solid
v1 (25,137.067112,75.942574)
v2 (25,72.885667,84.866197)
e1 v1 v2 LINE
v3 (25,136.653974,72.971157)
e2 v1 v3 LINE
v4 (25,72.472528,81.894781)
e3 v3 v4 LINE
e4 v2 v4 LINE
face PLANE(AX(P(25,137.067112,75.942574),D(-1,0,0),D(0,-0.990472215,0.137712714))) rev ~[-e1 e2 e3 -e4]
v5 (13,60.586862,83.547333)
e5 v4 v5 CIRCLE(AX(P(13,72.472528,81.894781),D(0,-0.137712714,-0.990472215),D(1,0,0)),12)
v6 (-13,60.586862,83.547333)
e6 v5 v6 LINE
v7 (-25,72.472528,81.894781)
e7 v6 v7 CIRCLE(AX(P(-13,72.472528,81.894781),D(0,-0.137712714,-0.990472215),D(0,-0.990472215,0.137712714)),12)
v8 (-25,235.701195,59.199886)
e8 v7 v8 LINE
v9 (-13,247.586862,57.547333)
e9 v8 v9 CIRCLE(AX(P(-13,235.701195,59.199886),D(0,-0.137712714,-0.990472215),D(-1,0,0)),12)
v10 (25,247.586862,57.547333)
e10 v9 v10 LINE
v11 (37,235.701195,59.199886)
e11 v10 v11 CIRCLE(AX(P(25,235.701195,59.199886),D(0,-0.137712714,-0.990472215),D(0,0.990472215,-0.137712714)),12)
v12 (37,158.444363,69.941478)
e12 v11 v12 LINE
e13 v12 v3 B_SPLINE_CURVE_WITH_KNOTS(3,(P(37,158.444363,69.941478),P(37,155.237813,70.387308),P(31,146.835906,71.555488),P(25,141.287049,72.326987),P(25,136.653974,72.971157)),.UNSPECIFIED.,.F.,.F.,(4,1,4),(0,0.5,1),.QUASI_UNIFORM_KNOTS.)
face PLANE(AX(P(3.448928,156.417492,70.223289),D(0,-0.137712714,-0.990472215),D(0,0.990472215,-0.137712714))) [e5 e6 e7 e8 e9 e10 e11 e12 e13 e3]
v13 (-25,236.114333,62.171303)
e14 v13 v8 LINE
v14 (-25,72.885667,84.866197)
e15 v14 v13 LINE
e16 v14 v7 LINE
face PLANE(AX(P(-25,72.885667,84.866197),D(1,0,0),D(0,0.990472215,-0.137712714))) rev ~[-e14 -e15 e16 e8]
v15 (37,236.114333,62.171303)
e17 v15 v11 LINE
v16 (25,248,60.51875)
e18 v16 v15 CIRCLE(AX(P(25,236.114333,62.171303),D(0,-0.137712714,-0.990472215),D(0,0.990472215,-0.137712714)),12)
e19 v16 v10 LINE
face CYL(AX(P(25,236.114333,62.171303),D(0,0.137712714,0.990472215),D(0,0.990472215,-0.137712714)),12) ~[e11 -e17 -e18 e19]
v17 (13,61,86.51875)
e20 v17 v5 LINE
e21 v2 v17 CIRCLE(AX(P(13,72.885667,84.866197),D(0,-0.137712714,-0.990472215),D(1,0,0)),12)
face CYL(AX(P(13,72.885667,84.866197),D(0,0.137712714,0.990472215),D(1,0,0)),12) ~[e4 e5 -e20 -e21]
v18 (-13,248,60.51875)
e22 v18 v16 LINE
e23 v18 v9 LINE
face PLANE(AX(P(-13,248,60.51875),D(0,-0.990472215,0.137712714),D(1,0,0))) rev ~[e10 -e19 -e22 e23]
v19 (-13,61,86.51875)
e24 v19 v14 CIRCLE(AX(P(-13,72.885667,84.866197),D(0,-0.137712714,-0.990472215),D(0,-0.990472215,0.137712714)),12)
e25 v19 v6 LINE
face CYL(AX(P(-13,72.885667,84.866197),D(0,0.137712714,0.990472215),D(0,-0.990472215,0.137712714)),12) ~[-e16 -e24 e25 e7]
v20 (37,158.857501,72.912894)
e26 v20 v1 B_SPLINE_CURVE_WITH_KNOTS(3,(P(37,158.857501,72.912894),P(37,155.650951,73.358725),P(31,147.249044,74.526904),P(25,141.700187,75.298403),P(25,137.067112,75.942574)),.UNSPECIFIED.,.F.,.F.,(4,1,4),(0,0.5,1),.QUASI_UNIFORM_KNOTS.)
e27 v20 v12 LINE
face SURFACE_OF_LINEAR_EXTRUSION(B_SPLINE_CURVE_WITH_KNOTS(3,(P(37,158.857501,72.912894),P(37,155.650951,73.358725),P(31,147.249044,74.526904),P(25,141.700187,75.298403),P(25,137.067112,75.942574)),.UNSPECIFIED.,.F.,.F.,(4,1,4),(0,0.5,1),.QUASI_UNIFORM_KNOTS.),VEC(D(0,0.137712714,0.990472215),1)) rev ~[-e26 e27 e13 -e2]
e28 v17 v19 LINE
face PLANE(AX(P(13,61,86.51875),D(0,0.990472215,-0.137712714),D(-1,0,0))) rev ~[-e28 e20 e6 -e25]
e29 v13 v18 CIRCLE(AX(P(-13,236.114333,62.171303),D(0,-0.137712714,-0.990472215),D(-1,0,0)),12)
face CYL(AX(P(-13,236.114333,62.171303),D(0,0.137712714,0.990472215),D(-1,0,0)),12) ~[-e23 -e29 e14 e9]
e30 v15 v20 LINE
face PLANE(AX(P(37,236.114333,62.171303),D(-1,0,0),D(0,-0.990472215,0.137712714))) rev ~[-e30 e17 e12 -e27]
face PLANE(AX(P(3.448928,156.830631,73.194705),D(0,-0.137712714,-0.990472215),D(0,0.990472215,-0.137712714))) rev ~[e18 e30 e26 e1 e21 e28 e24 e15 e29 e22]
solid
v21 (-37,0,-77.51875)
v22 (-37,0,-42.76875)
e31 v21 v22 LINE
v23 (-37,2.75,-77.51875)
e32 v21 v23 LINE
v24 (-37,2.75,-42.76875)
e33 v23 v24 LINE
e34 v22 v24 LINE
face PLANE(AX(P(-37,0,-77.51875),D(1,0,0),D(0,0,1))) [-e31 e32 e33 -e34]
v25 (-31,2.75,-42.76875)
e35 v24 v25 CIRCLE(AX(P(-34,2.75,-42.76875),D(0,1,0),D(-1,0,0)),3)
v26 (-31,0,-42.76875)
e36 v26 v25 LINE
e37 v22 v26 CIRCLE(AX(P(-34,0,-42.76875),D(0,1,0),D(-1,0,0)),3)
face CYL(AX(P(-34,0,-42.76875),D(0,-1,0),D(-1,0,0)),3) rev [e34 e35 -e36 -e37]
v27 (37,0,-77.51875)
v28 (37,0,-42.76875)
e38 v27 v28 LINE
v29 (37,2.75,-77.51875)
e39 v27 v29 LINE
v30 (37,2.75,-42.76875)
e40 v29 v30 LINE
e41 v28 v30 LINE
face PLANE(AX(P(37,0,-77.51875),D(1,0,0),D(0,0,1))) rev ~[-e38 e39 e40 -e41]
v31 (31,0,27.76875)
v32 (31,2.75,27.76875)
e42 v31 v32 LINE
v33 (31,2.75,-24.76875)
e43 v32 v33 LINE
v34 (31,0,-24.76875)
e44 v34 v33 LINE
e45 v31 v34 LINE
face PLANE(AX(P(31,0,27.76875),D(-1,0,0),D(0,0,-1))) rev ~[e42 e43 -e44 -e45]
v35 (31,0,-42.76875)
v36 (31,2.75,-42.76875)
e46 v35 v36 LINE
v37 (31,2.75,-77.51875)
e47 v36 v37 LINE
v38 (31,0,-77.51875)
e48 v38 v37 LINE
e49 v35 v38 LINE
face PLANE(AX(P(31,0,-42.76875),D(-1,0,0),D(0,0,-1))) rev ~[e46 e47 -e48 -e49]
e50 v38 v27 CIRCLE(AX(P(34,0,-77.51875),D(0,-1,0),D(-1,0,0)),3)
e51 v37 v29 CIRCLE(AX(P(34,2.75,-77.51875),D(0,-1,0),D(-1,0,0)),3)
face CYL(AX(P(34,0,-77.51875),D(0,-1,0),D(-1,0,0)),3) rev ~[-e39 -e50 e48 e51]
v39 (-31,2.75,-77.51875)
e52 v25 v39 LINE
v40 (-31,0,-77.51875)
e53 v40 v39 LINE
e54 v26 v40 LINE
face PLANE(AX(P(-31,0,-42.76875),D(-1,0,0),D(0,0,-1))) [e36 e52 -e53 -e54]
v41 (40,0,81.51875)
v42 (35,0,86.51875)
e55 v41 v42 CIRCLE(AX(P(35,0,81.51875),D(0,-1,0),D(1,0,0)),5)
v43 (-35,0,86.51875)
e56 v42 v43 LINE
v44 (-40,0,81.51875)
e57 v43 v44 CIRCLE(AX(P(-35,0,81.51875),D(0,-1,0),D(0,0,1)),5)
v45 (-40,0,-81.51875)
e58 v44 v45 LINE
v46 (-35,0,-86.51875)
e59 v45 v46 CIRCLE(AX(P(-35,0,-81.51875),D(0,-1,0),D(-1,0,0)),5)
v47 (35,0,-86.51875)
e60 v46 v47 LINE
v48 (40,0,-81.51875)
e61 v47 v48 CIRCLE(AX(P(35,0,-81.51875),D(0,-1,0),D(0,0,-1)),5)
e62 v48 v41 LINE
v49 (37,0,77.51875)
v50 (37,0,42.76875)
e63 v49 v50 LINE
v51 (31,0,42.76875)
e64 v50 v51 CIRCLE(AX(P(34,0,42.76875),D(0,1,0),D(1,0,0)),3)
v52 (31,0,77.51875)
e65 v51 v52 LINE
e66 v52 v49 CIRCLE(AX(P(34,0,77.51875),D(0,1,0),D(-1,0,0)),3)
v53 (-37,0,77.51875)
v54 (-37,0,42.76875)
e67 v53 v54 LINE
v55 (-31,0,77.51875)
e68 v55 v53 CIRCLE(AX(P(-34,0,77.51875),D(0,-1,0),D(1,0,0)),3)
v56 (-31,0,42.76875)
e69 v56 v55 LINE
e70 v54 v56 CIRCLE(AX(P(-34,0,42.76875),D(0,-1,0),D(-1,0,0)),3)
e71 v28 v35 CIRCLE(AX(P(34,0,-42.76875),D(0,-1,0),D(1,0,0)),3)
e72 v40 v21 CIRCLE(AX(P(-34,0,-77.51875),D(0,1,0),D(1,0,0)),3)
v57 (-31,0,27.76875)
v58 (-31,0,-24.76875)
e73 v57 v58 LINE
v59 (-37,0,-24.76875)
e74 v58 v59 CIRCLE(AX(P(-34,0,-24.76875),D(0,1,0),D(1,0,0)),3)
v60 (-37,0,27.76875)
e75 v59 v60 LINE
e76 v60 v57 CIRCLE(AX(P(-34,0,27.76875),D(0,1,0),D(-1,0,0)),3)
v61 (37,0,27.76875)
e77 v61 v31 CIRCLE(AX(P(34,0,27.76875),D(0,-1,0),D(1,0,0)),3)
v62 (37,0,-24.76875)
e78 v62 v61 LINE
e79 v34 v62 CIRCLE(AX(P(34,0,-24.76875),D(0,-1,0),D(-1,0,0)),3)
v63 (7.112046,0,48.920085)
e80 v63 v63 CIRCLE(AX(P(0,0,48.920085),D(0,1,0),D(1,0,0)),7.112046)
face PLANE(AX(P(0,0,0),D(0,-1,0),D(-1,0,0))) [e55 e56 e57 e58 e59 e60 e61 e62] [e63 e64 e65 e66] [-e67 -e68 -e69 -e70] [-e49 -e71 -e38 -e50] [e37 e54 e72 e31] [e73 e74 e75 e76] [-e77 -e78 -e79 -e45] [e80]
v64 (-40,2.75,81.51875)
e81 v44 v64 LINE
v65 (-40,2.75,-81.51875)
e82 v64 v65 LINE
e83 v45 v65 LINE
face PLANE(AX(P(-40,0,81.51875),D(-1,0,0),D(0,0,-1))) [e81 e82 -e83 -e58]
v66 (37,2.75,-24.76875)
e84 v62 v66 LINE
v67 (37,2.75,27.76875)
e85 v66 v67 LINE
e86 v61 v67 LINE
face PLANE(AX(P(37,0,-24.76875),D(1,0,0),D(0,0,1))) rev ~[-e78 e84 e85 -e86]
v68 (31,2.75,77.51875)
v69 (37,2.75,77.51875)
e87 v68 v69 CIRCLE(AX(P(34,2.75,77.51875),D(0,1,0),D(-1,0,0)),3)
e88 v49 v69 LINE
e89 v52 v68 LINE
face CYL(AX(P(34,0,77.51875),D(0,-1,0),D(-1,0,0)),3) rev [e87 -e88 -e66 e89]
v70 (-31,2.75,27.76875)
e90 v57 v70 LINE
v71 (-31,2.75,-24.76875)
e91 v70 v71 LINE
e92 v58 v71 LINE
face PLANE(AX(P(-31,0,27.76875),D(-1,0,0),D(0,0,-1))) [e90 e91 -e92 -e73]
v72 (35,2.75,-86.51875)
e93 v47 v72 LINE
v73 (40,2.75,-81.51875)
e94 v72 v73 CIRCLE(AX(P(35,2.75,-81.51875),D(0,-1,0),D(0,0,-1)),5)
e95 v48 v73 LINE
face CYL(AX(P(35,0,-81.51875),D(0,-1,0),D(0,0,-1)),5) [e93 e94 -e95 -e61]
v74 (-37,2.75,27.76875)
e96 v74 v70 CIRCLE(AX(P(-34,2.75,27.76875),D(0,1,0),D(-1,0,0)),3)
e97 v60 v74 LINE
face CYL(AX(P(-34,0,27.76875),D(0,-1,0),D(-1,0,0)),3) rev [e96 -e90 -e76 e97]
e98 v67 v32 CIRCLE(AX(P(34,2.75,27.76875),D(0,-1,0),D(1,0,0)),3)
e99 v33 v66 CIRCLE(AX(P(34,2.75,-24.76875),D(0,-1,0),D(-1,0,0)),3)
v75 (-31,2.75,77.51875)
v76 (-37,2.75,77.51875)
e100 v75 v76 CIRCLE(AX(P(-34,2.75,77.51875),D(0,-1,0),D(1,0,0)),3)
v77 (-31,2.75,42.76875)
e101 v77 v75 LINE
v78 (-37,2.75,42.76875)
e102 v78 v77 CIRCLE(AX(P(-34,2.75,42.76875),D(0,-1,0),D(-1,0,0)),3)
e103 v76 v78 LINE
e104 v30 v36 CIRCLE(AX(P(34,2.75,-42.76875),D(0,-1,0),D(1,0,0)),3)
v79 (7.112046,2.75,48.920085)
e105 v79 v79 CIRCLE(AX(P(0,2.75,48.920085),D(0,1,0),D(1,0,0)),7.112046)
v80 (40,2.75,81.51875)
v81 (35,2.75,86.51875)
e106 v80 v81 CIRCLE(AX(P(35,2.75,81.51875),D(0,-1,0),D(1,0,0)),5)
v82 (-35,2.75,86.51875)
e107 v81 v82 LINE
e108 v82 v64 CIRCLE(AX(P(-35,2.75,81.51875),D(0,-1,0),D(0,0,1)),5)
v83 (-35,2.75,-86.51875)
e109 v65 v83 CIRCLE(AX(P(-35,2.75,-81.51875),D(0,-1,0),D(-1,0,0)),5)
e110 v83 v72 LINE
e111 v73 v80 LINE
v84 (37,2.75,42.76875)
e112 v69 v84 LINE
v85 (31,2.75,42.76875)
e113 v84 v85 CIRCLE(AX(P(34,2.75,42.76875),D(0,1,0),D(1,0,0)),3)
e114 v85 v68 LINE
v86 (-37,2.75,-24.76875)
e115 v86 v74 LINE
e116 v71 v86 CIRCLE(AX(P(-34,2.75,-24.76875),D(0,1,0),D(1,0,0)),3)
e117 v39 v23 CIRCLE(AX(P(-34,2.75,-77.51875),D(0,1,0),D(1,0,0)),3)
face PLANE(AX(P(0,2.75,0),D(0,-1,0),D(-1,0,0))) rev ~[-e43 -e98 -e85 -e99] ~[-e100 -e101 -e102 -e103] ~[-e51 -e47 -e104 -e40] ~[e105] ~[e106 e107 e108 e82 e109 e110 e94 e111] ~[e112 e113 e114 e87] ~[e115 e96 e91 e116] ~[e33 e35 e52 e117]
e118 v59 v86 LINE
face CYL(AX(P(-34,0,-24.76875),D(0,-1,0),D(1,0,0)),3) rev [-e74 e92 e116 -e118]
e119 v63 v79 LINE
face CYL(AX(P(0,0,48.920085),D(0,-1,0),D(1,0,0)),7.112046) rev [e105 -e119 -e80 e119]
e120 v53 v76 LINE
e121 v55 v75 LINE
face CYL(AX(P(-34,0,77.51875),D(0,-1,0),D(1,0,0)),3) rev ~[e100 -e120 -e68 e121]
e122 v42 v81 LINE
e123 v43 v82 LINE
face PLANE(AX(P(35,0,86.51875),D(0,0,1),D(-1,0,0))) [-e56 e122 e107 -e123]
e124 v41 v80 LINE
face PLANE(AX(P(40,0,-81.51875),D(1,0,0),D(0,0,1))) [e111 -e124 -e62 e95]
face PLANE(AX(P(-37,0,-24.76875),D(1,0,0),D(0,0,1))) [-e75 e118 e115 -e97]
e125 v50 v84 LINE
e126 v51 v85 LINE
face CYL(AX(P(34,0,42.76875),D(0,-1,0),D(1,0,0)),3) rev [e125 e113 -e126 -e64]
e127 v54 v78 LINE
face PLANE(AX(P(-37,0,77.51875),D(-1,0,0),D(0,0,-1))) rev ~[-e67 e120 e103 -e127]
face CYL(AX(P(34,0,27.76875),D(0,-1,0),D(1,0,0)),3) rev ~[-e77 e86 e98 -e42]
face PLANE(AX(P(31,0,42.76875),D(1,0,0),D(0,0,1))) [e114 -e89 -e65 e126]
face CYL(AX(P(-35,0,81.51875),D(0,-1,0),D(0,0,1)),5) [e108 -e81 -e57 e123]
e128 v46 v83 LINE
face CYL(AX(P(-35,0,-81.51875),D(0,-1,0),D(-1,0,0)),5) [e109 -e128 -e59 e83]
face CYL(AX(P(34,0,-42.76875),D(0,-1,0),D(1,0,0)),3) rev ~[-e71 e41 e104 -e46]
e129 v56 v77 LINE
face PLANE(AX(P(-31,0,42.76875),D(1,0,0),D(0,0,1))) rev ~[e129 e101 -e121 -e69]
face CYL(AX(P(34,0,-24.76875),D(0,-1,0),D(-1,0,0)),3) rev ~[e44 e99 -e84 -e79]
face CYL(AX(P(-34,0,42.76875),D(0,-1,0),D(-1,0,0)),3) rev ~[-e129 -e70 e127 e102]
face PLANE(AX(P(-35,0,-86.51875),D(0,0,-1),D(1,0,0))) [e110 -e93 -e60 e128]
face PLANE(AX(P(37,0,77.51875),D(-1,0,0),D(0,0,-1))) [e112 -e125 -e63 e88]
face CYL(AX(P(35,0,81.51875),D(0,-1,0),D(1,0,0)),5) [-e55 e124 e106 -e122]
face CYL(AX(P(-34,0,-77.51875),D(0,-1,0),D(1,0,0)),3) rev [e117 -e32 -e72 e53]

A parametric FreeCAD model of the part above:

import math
import FreeCAD as App
import Part
import Sketcher

V = App.Vector
Q = App.Units.Quantity

doc = App.newDocument("Part")
body = doc.addObject("PartDesign::Body", "Body")

sketch1 = body.newObject("Sketcher::SketchObject", "Sketch")
sketch1.AttachmentSupport = (doc.getObject("XZ_Plane"), [""])
sketch1.MapMode = "FlatFace"
sketch1.addGeometry([
    Part.LineSegment(V(35, -86.51875, 0), V(-35, -86.51875, 0)),
    Part.ArcOfCircle(Part.Circle(V(-35, -81.51875, 0), V(0, 0, 1), 5), math.radians(180), math.radians(270)),
    Part.LineSegment(V(-40, -81.51875, 0), V(-40, 81.51875, 0)),
    Part.ArcOfCircle(Part.Circle(V(-35, 81.51875, 0), V(0, 0, 1), 5), math.radians(90), math.radians(180)),
    Part.LineSegment(V(-35, 86.51875, 0), V(35, 86.51875, 0)),
    Part.ArcOfCircle(Part.Circle(V(35, 81.51875, 0), V(0, 0, 1), 5), math.radians(0), math.radians(90)),
    Part.LineSegment(V(40, 81.51875, 0), V(40, -81.51875, 0)),
    Part.ArcOfCircle(Part.Circle(V(35, -81.51875, 0), V(0, 0, 1), 5), math.radians(-90), math.radians(0)),
    Part.ArcOfCircle(Part.Circle(V(34, 77.51875, 0), V(0, 0, 1), 3), math.radians(0), math.radians(180)),
    Part.LineSegment(V(31, 77.51875, 0), V(31, 42.76875, 0)),
    Part.ArcOfCircle(Part.Circle(V(34, 42.76875, 0), V(0, 0, 1), 3), math.radians(180), math.radians(360)),
    Part.LineSegment(V(37, 42.76875, 0), V(37, 77.51875, 0)),
    Part.LineSegment(V(37, -24.76875, 0), V(37, 27.76875, 0)),
    Part.ArcOfCircle(Part.Circle(V(34, 27.76875, 0), V(0, 0, 1), 3), math.radians(0), math.radians(180)),
    Part.LineSegment(V(31, 27.76875, 0), V(31, -24.76875, 0)),
    Part.ArcOfCircle(Part.Circle(V(34, -24.76875, 0), V(0, 0, 1), 3), math.radians(180), math.radians(360)),
    Part.Circle(V(0, 48.920085, 0), V(0, 0, 1), 7.112046),
    Part.LineSegment(V(-37, 77.51875, 0), V(-37, 42.76875, 0)),
    Part.ArcOfCircle(Part.Circle(V(-34, 42.76875, 0), V(0, 0, 1), 3), math.radians(180), math.radians(360)),
    Part.LineSegment(V(-31, 42.76875, 0), V(-31, 77.51875, 0)),
    Part.ArcOfCircle(Part.Circle(V(-34, 77.51875, 0), V(0, 0, 1), 3), math.radians(0), math.radians(180)),
    Part.ArcOfCircle(Part.Circle(V(-34, -24.76875, 0), V(0, 0, 1), 3), math.radians(180), math.radians(360)),
    Part.LineSegment(V(-31, -24.76875, 0), V(-31, 27.76875, 0)),
    Part.ArcOfCircle(Part.Circle(V(-34, 27.76875, 0), V(0, 0, 1), 3), math.radians(0), math.radians(180)),
    Part.LineSegment(V(-37, 27.76875, 0), V(-37, -24.76875, 0)),
    Part.LineSegment(V(37, -77.51875, 0), V(37, -42.76875, 0)),
    Part.ArcOfCircle(Part.Circle(V(34, -42.76875, 0), V(0, 0, 1), 3), math.radians(0), math.radians(180)),
    Part.LineSegment(V(31, -42.76875, 0), V(31, -77.51875, 0)),
    Part.ArcOfCircle(Part.Circle(V(34, -77.51875, 0), V(0, 0, 1), 3), math.radians(180), math.radians(360)),
    Part.ArcOfCircle(Part.Circle(V(-34, -77.51875, 0), V(0, 0, 1), 3), math.radians(180), math.radians(360)),
    Part.LineSegment(V(-31, -77.51875, 0), V(-31, -42.76875, 0)),
    Part.ArcOfCircle(Part.Circle(V(-34, -42.76875, 0), V(0, 0, 1), 3), math.radians(0), math.radians(180)),
    Part.LineSegment(V(-37, -42.76875, 0), V(-37, -77.51875, 0)),
], False)
sketch1.addConstraint([
    Sketcher.Constraint("Tangent", 0, 2, 1, 2),
    Sketcher.Constraint("Tangent", 1, 1, 2, 1),
    Sketcher.Constraint("Tangent", 2, 2, 3, 2),
    Sketcher.Constraint("Tangent", 3, 1, 4, 1),
    Sketcher.Constraint("Tangent", 4, 2, 5, 2),
    Sketcher.Constraint("Tangent", 5, 1, 6, 1),
    Sketcher.Constraint("Tangent", 6, 2, 7, 2),
    Sketcher.Constraint("Tangent", 7, 1, 0, 1),
    Sketcher.Constraint("Tangent", 8, 2, 9, 1),
    Sketcher.Constraint("Tangent", 9, 2, 10, 1),
    Sketcher.Constraint("Tangent", 10, 2, 11, 1),
    Sketcher.Constraint("Tangent", 11, 2, 8, 1),
    Sketcher.Constraint("Tangent", 12, 2, 13, 1),
    Sketcher.Constraint("Tangent", 13, 2, 14, 1),
    Sketcher.Constraint("Tangent", 14, 2, 15, 1),
    Sketcher.Constraint("Tangent", 15, 2, 12, 1),
    Sketcher.Constraint("Tangent", 17, 2, 18, 1),
    Sketcher.Constraint("Tangent", 18, 2, 19, 1),
    Sketcher.Constraint("Tangent", 19, 2, 20, 1),
    Sketcher.Constraint("Tangent", 20, 2, 17, 1),
    Sketcher.Constraint("Tangent", 21, 2, 22, 1),
    Sketcher.Constraint("Tangent", 22, 2, 23, 1),
    Sketcher.Constraint("Tangent", 23, 2, 24, 1),
    Sketcher.Constraint("Tangent", 24, 2, 21, 1),
    Sketcher.Constraint("Tangent", 25, 2, 26, 1),
    Sketcher.Constraint("Tangent", 26, 2, 27, 1),
    Sketcher.Constraint("Tangent", 27, 2, 28, 1),
    Sketcher.Constraint("Tangent", 28, 2, 25, 1),
    Sketcher.Constraint("Tangent", 29, 2, 30, 1),
    Sketcher.Constraint("Tangent", 30, 2, 31, 1),
    Sketcher.Constraint("Tangent", 31, 2, 32, 1),
    Sketcher.Constraint("Tangent", 32, 2, 29, 1),
    Sketcher.Constraint("Horizontal", 0),
    Sketcher.Constraint("Vertical", 2),
    Sketcher.Constraint("Horizontal", 4),
    Sketcher.Constraint("Vertical", 6),
    Sketcher.Constraint("Vertical", 9),
    Sketcher.Constraint("Vertical", 11),
    Sketcher.Constraint("Vertical", 12),
    Sketcher.Constraint("Vertical", 14),
    Sketcher.Constraint("Vertical", 17),
    Sketcher.Constraint("Vertical", 19),
    Sketcher.Constraint("Vertical", 22),
    Sketcher.Constraint("Vertical", 24),
    Sketcher.Constraint("Vertical", 25),
    Sketcher.Constraint("Vertical", 27),
    Sketcher.Constraint("Vertical", 30),
    Sketcher.Constraint("Vertical", 32),
    Sketcher.Constraint("Equal", 1, 3),
    Sketcher.Constraint("Equal", 3, 5),
    Sketcher.Constraint("Equal", 5, 7),
    Sketcher.Constraint("Equal", 10, 13),
    Sketcher.Constraint("Equal", 15, 18),
    Sketcher.Constraint("Equal", 20, 21),
    Sketcher.Constraint("Equal", 23, 26),
    Sketcher.Constraint("Equal", 28, 29),
    Sketcher.Constraint("Symmetric", 1, 3, 5, 3, -1, 1),
    Sketcher.Constraint("Symmetric", 18, 3, 26, 3, -1, 1),
    Sketcher.Constraint("Symmetric", 8, 3, 29, 3, -1, 1),
    Sketcher.Constraint("Symmetric", 10, 3, 18, 3, -2),
    Sketcher.Constraint("Symmetric", 15, 3, 21, 3, -2),
    Sketcher.Constraint("PointOnObject", 16, 3, -2),
    Sketcher.Constraint("Horizontal", 8, 3, 20, 3),
    Sketcher.Constraint("Horizontal", 13, 3, 23, 3),
    Sketcher.Constraint("Horizontal", 28, 3, 29, 3),
    Sketcher.Constraint("Horizontal", 26, 3, 31, 3),
    Sketcher.Constraint("Vertical", 10, 3, 13, 3),
    Sketcher.Constraint("Radius", 1, Q("5 mm")),
    Sketcher.Constraint("Radius", 8, Q("3 mm")),
    Sketcher.Constraint("DistanceX", 0, 2, 0, 1, Q("70 mm")),
    Sketcher.Constraint("DistanceX", -1, 1, 8, 3, Q("34 mm")),
    Sketcher.Constraint("DistanceY", 8, 3, 5, 3, Q("4 mm")),
    Sketcher.Constraint("DistanceY", 13, 3, 10, 3, Q("15 mm")),
    Sketcher.Constraint("DistanceY", 26, 3, 15, 3, Q("18 mm")),
    Sketcher.Constraint("DistanceY", 9, 2, 9, 1, Q("34.75 mm")),
    Sketcher.Constraint("Diameter", 16, Q("14.224091 mm")),
    Sketcher.Constraint("DistanceY", 2, 1, 2, 2, Q("163.0375 mm")),
    Sketcher.Constraint("DistanceY", -1, 1, 16, 3, Q("48.920085 mm")),
])
pad1 = body.newObject("PartDesign::Pad", "Pad")
pad1.Profile = sketch1
pad1.Length = 2.75
pad1.Reversed = True
body2 = doc.addObject("PartDesign::Body", "Body001")

sketch2 = body2.newObject("Sketcher::SketchObject", "Sketch001")
sketch2.Placement = App.Placement(V(0, 12.958063, 93.198378), App.Rotation(V(0, -0.990472215, 0.137712714), V(1, 0, 0), V(0, 0.137712714, 0.990472215), "ZXY"))
sketch2.addGeometry([
    Part.LineSegment(V(-60.504073, 25, 0), V(-125.302908, 25, 0)),
    Part.BSplineCurve([V(-147.302908, 37, 0), V(-144.065513, 37, 0), V(-135.582784, 31, 0), V(-129.980551, 25, 0), V(-125.302908, 25, 0)], [4, 1, 4], [0, 0.5, 1], False, 3, [1, 1, 1, 1, 1], False),
    Part.LineSegment(V(-147.302908, 37, 0), V(-225.302908, 37, 0)),
    Part.ArcOfCircle(Part.Circle(V(-225.302908, 25, 0), V(0, 0, 1), 12), math.radians(90), math.radians(180)),
    Part.LineSegment(V(-237.302908, 25, 0), V(-237.302908, -13, 0)),
    Part.ArcOfCircle(Part.Circle(V(-225.302908, -13, 0), V(0, 0, 1), 12), math.radians(-180), math.radians(-90)),
    Part.LineSegment(V(-225.302908, -25, 0), V(-60.504073, -25, 0)),
    Part.ArcOfCircle(Part.Circle(V(-60.504073, -13, 0), V(0, 0, 1), 12), math.radians(-90), math.radians(0)),
    Part.LineSegment(V(-48.504073, -13, 0), V(-48.504073, 13, 0)),
    Part.ArcOfCircle(Part.Circle(V(-60.504073, 13, 0), V(0, 0, 1), 12), math.radians(0), math.radians(90)),
], False)
sketch2.addConstraint([
    Sketcher.Constraint("Block", 1),
    Sketcher.Constraint("Coincident", 0, 2, 1, 2),
    Sketcher.Constraint("Coincident", 1, 1, 2, 1),
    Sketcher.Constraint("Tangent", 2, 2, 3, 1),
    Sketcher.Constraint("Tangent", 3, 2, 4, 1),
    Sketcher.Constraint("Tangent", 4, 2, 5, 1),
    Sketcher.Constraint("Tangent", 5, 2, 6, 1),
    Sketcher.Constraint("Tangent", 6, 2, 7, 1),
    Sketcher.Constraint("Tangent", 7, 2, 8, 1),
    Sketcher.Constraint("Tangent", 8, 2, 9, 1),
    Sketcher.Constraint("Tangent", 9, 2, 0, 1),
    Sketcher.Constraint("Horizontal", 0),
    Sketcher.Constraint("Horizontal", 2),
    Sketcher.Constraint("Vertical", 4),
    Sketcher.Constraint("Horizontal", 6),
    Sketcher.Constraint("Vertical", 8),
    Sketcher.Constraint("Equal", 3, 5),
    Sketcher.Constraint("Equal", 5, 7),
    Sketcher.Constraint("Equal", 7, 9),
    Sketcher.Constraint("Horizontal", 3, 3, 0, 2),
    Sketcher.Constraint("DistanceX", 2, 2, 2, 1, Q("78 mm")),
    Sketcher.Constraint("DistanceY", 4, 2, 4, 1, Q("38 mm")),
    Sketcher.Constraint("DistanceX", 0, 2, 0, 1, Q("64.798835 mm")),
])
pad2 = body2.newObject("PartDesign::Pad", "Pad001")
pad2.Profile = sketch2
pad2.Length = 3
pad2.Reversed = True

doc.recompute()
